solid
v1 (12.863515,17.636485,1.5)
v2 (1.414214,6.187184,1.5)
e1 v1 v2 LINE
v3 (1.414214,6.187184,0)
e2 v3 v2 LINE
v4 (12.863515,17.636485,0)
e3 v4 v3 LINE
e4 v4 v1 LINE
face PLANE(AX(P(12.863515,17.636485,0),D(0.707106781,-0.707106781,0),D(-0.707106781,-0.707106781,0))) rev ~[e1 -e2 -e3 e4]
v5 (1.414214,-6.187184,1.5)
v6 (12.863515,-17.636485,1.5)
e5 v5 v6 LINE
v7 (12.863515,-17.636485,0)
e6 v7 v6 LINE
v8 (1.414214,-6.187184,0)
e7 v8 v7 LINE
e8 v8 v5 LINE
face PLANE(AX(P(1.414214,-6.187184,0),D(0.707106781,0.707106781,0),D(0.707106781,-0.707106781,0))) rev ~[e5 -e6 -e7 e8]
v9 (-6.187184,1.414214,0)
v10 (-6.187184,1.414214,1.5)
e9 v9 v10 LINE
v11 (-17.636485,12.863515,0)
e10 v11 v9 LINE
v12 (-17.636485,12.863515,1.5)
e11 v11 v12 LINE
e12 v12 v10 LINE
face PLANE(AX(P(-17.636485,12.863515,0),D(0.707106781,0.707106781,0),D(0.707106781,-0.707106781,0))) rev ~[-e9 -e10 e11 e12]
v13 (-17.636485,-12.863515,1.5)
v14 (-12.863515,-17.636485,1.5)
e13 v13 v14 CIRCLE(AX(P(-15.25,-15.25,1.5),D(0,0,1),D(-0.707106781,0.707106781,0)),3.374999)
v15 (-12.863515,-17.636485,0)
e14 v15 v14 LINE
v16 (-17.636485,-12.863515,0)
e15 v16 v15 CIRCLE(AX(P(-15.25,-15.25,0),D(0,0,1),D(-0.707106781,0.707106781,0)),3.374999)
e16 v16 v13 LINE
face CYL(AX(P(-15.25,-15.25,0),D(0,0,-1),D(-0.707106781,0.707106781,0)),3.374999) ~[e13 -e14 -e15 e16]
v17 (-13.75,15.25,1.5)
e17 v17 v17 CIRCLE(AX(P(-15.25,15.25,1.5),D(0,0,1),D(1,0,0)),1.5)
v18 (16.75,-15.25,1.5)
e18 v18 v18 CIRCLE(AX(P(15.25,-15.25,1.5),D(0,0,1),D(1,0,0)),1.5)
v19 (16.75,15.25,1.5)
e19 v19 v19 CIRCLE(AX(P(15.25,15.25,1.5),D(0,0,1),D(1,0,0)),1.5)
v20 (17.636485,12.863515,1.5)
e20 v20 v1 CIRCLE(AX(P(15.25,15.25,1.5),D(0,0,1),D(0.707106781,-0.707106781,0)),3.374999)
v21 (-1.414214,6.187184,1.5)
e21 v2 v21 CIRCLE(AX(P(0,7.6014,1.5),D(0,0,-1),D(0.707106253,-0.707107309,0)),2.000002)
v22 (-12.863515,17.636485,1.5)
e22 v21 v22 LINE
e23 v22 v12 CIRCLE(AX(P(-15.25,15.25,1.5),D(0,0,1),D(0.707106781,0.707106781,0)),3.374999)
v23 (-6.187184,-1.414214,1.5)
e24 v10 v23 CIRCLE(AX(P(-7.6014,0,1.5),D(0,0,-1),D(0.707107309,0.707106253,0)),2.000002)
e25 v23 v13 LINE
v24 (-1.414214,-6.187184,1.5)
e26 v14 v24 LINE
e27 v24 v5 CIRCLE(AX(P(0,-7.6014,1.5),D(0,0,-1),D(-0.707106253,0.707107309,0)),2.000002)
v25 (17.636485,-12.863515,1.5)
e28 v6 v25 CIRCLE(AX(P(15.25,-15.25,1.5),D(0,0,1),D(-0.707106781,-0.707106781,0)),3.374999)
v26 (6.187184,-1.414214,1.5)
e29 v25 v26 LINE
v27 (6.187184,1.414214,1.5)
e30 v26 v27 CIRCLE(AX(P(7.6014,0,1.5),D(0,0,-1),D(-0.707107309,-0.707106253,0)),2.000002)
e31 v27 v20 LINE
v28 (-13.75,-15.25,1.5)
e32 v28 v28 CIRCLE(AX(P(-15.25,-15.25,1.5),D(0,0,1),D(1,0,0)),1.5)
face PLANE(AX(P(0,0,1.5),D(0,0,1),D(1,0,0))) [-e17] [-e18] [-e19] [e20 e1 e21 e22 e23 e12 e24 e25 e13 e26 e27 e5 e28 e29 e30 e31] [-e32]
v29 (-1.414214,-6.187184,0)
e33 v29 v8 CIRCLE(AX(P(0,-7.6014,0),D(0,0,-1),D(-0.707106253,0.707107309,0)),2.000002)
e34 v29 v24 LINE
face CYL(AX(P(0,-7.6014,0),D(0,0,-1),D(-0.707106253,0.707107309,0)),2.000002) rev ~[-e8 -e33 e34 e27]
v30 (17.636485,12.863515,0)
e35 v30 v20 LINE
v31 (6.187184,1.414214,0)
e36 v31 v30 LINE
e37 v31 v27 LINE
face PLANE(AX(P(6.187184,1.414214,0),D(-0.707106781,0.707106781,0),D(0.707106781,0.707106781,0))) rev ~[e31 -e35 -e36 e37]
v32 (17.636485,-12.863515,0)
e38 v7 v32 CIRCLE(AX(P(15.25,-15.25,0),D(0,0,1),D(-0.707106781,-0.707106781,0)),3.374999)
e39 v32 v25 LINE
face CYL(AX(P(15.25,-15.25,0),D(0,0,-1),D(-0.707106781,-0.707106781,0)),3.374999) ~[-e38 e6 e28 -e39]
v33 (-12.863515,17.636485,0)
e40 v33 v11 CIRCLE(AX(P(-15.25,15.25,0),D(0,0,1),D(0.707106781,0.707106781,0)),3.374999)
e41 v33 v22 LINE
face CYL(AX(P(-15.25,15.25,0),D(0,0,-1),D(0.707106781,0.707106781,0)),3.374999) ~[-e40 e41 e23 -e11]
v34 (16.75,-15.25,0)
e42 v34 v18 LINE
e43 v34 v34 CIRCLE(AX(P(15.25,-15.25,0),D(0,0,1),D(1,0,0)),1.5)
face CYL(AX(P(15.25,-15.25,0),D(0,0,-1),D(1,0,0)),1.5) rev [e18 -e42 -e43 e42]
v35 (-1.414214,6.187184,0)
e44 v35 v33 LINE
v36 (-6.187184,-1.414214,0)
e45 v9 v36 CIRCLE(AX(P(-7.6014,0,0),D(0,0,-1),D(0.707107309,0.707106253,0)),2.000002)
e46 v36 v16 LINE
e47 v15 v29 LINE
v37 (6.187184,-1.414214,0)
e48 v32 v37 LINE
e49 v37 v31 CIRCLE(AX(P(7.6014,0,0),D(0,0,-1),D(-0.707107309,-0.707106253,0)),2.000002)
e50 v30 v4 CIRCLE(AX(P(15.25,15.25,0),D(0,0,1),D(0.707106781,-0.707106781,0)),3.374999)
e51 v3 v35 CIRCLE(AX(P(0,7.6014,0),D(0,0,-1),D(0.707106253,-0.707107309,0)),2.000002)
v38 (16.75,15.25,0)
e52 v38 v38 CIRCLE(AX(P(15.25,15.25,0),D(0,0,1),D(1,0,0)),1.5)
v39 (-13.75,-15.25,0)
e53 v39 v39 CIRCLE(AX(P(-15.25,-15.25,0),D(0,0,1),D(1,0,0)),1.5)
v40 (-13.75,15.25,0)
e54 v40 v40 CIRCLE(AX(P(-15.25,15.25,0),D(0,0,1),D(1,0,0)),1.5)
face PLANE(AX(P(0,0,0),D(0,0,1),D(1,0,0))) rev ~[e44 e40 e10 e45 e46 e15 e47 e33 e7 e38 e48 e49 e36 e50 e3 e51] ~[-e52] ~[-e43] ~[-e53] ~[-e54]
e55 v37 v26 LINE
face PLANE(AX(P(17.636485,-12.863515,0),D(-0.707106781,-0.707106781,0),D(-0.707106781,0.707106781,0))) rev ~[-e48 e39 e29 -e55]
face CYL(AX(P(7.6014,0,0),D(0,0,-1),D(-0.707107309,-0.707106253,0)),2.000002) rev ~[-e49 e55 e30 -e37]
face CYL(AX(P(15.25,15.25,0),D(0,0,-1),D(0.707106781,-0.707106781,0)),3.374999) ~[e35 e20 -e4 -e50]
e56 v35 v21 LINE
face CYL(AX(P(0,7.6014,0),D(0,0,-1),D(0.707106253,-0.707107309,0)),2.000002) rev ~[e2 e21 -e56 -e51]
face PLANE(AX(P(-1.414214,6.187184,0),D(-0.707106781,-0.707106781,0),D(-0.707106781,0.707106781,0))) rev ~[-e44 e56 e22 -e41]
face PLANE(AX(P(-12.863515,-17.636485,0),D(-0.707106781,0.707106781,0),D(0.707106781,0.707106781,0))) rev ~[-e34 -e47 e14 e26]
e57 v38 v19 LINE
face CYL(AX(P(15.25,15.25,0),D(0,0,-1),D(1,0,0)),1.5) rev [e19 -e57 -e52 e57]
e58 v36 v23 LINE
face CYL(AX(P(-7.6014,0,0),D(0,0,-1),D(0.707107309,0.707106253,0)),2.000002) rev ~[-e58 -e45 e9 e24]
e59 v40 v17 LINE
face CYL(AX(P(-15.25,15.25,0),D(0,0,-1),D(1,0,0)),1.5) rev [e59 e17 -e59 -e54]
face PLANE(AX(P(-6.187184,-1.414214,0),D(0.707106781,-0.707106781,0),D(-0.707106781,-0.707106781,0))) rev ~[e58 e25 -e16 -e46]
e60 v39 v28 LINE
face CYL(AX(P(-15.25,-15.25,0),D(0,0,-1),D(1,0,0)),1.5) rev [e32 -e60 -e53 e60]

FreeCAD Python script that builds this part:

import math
import FreeCAD as App
import Part
import Sketcher

V = App.Vector
Q = App.Units.Quantity

doc = App.newDocument("Part")
body = doc.addObject("PartDesign::Body", "Body")

# Sketch on XY plane
sketch1 = body.newObject("Sketcher::SketchObject", "Sketch")
sketch1.AttachmentSupport = (doc.getObject("XY_Plane"), [""])
sketch1.MapMode = "FlatFace"
sketch1.addGeometry([
    Part.ArcOfCircle(Part.Circle(V(-15.2, 15.2, 0), V(0, 0, 1), 3.4), math.radians(45), math.radians(225)),  # 0
    Part.LineSegment(V(-17.6, 12.9, 0), V(-6.2, 1.4, 0)),  # 1
    Part.ArcOfCircle(Part.Circle(V(-7.6, 0, 0), V(0, 0, 1), 2), math.radians(-45), math.radians(45)),  # 2
    Part.LineSegment(V(-6.2, -1.4, 0), V(-17.6, -12.9, 0)),  # 3
    Part.ArcOfCircle(Part.Circle(V(-15.2, -15.2, 0), V(0, 0, 1), 3.4), math.radians(135), math.radians(315)),  # 4
    Part.LineSegment(V(-12.9, -17.6, 0), V(-1.4, -6.2, 0)),  # 5
    Part.ArcOfCircle(Part.Circle(V(0, -7.6, 0), V(0, 0, 1), 2), math.radians(45), math.radians(135)),  # 6
    Part.LineSegment(V(1.4, -6.2, 0), V(12.9, -17.6, 0)),  # 7
    Part.ArcOfCircle(Part.Circle(V(15.2, -15.2, 0), V(0, 0, 1), 3.4), math.radians(-135), math.radians(45)),  # 8
    Part.LineSegment(V(17.6, -12.9, 0), V(6.2, -1.4, 0)),  # 9
    Part.ArcOfCircle(Part.Circle(V(7.6, 0, 0), V(0, 0, 1), 2), math.radians(135), math.radians(225)),  # 10
    Part.LineSegment(V(6.2, 1.4, 0), V(17.6, 12.9, 0)),  # 11
    Part.ArcOfCircle(Part.Circle(V(15.2, 15.2, 0), V(0, 0, 1), 3.4), math.radians(-45), math.radians(135)),  # 12
    Part.LineSegment(V(12.9, 17.6, 0), V(1.4, 6.2, 0)),  # 13
    Part.ArcOfCircle(Part.Circle(V(0, 7.6, 0), V(0, 0, 1), 2), math.radians(-135), math.radians(-45)),  # 14
    Part.LineSegment(V(-1.4, 6.2, 0), V(-12.9, 17.6, 0)),  # 15
    Part.Circle(V(-15.2, -15.2, 0), V(0, 0, 1), 1.5),  # 16
    Part.Circle(V(15.2, -15.2, 0), V(0, 0, 1), 1.5),  # 17
    Part.Circle(V(-15.2, 15.2, 0), V(0, 0, 1), 1.5),  # 18
    Part.Circle(V(15.2, 15.2, 0), V(0, 0, 1), 1.5),  # 19
], False)
sketch1.addConstraint([
    Sketcher.Constraint("Tangent", 0, 2, 1, 1),
    Sketcher.Constraint("Tangent", 1, 2, 2, 2),
    Sketcher.Constraint("Tangent", 2, 1, 3, 1),
    Sketcher.Constraint("Tangent", 3, 2, 4, 1),
    Sketcher.Constraint("Tangent", 4, 2, 5, 1),
    Sketcher.Constraint("Tangent", 5, 2, 6, 2),
    Sketcher.Constraint("Tangent", 6, 1, 7, 1),
    Sketcher.Constraint("Tangent", 7, 2, 8, 1),
    Sketcher.Constraint("Tangent", 8, 2, 9, 1),
    Sketcher.Constraint("Tangent", 9, 2, 10, 2),
    Sketcher.Constraint("Tangent", 10, 1, 11, 1),
    Sketcher.Constraint("Tangent", 11, 2, 12, 1),
    Sketcher.Constraint("Tangent", 12, 2, 13, 1),
    Sketcher.Constraint("Tangent", 13, 2, 14, 2),
    Sketcher.Constraint("Tangent", 14, 1, 15, 1),
    Sketcher.Constraint("Tangent", 15, 2, 0, 1),
    Sketcher.Constraint("Coincident", 16, 3, 4, 3),
    Sketcher.Constraint("Coincident", 17, 3, 8, 3),
    Sketcher.Constraint("Coincident", 18, 3, 0, 3),
    Sketcher.Constraint("Coincident", 19, 3, 12, 3),
    Sketcher.Constraint("Equal", 0, 4),
    Sketcher.Constraint("Equal", 2, 6),
    Sketcher.Constraint("Equal", 4, 8),
    Sketcher.Constraint("Equal", 6, 10),
    Sketcher.Constraint("Equal", 8, 12),
    Sketcher.Constraint("Equal", 10, 14),
    Sketcher.Constraint("Equal", 16, 17),
    Sketcher.Constraint("Equal", 17, 18),
    Sketcher.Constraint("Equal", 18, 19),
    Sketcher.Constraint("Symmetric", 0, 3, 8, 3, -1, 1),
    Sketcher.Constraint("Symmetric", 2, 3, 10, 3, -1, 1),
    Sketcher.Constraint("Symmetric", 4, 3, 12, 3, -1, 1),
    Sketcher.Constraint("Symmetric", 6, 3, 14, 3, -1, 1),
    Sketcher.Constraint("Symmetric", 4, 3, 8, 3, -2),
    Sketcher.Constraint("PointOnObject", 2, 3, -1),
    Sketcher.Constraint("PointOnObject", 6, 3, -2),
    Sketcher.Constraint("Perpendicular", 1, 3),
    Sketcher.Constraint("Parallel", 3, 5),
    Sketcher.Constraint("Equal", 3, 5),
    Sketcher.Constraint("Diameter", 16, Q("3 mm")),
    Sketcher.Constraint("Radius", 0, Q("3.374999 mm")),
    Sketcher.Constraint("DistanceY", 4, 3, 0, 3, Q("30.5 mm")),
    Sketcher.Constraint("Radius", 2, Q("2.000002 mm")),
])
pad1 = body.newObject("PartDesign::Pad", "Pad")
pad1.Profile = sketch1
pad1.Length = 1.5

doc.recompute()
